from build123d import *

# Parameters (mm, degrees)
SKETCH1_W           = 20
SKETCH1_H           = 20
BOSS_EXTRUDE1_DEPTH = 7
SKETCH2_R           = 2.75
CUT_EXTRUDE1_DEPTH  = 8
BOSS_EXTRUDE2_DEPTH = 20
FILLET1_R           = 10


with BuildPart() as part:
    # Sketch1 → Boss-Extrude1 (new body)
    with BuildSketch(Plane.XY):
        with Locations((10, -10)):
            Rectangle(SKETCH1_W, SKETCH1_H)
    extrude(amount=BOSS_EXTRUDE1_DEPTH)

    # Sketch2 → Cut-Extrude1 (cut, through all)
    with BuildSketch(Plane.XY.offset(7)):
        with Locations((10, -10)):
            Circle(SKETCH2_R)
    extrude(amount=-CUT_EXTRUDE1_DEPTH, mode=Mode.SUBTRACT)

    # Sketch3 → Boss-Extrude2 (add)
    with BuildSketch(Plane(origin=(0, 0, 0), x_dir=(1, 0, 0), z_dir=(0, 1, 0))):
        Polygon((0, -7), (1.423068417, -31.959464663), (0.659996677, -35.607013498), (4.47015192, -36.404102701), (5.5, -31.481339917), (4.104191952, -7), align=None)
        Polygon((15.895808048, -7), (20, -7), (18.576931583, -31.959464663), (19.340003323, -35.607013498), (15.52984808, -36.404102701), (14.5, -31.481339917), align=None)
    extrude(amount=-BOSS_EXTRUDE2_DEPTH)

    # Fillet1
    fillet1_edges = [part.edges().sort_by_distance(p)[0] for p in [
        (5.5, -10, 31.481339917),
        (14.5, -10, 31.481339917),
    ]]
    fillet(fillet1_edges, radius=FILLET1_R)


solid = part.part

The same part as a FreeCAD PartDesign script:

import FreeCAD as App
import Part
import Sketcher
from FreeCAD import Vector


def edges_at(feature, points):
    """Names of the edges that pass closest to the given points."""
    edges = feature.Shape.Edges
    near = lambda p: min(range(len(edges)), key=lambda i: edges[i].distToShape(Part.Vertex(*p))[0])
    return sorted({f"Edge{near(p) + 1}" for p in points})


def add_polygon(sketch, points):
    """Adds a closed chain of lines whose ends are joined by coincident constraints."""
    first, n = sketch.GeometryCount, len(points)
    for a, b in zip(points, points[1:] + points[:1]):
        sketch.addGeometry(Part.LineSegment(App.Vector(*a, 0), App.Vector(*b, 0)), False)
    for i in range(n):
        sketch.addConstraint(Sketcher.Constraint("Coincident", first + i, 2, first + (i + 1) % n, 1))

doc = App.newDocument("Part")
params = doc.addObject("Spreadsheet::Sheet", "Params")
for row, (alias, value) in enumerate([
    ("sketch1_width", "20 mm"),
    ("pad1_length", "7 mm"),
    ("sketch2_diameter", "5.5 mm"),
    ("sketch3_length", "25 mm"),
    ("pad2_length", "20 mm"),
    ("fillet_radius", "10 mm"),
], start=1):
    params.set(f"A{row}", alias)
    params.set(f"B{row}", "=" + value)
    params.setAlias(f"B{row}", alias)

body = doc.addObject("PartDesign::Body", "Body")

# Sketch on XY plane
sketch1 = body.newObject("Sketcher::SketchObject", "Sketch")
sketch1.AttachmentSupport = (doc.getObject("XY_Plane"), [""])
sketch1.MapMode = "FlatFace"
add_polygon(sketch1, [(0, 0), (0, -20), (20, -20), (20, 0)])  # lines 0-3
sketch1.addConstraint([
    Sketcher.Constraint("Vertical", 0),
    Sketcher.Constraint("Horizontal", 1),
    Sketcher.Constraint("Vertical", 2),
    Sketcher.Constraint("Horizontal", 3),
    Sketcher.Constraint("Coincident", 3, 2, -1, 1),
    Sketcher.Constraint("Equal", 3, 0),
    Sketcher.Constraint("DistanceX", 1, 1, 1, 2, 20.0),
])
sketch1.setExpression("Constraints[10]", "Params.sketch1_width")
pad1 = body.newObject("PartDesign::Pad", "Pad")
pad1.Profile = sketch1
pad1.setExpression("Length", "Params.pad1_length")

# Sketch on XY plane
sketch2 = body.newObject("Sketcher::SketchObject", "Sketch001")
sketch2.AttachmentSupport = (doc.getObject("XY_Plane"), [""])
sketch2.MapMode = "FlatFace"
sketch2.AttachmentOffset = App.Placement(Vector(0, 0, 7), App.Rotation())
sketch2.addGeometry(Part.Circle(Vector(10, -10, 0), Vector(0, 0, 1), 2.8), False)
sketch2.addConstraint([
    Sketcher.Constraint("Diameter", 0, 5.5),
    Sketcher.Constraint("DistanceX", -1, 1, 0, 3, 10.0),
    Sketcher.Constraint("DistanceY", 0, 3, -1, 1, 10.0),
])
sketch2.setExpression("Constraints[0]", "Params.sketch2_diameter")
pocket1 = body.newObject("PartDesign::Pocket", "Pocket")
pocket1.Profile = sketch2
pocket1.Type = "ThroughAll"

# Sketch on XZ plane
sketch3 = body.newObject("Sketcher::SketchObject", "Sketch002")
sketch3.AttachmentSupport = (doc.getObject("XZ_Plane"), [""])
sketch3.MapMode = "FlatFace"
add_polygon(sketch3, [(0, 7), (1.4, 32), (0.7, 35.6), (4.5, 36.4), (5.5, 31.5), (4.1, 7)])  # lines 0-5
add_polygon(sketch3, [(20, 7), (15.9, 7), (14.5, 31.5), (15.5, 36.4), (19.3, 35.6), (18.6, 32)])  # lines 6-11
sketch3.addConstraint([
    Sketcher.Constraint("Horizontal", 5),
    Sketcher.Constraint("Horizontal", 6),
    Sketcher.Constraint("PointOnObject", 5, 2, -2),
    Sketcher.Constraint("Perpendicular", 1, 2),
    Sketcher.Constraint("Perpendicular", 2, 3),
    Sketcher.Constraint("Parallel", 0, 4),
    Sketcher.Constraint("Perpendicular", 8, 9),
    Sketcher.Constraint("Perpendicular", 9, 10),
    Sketcher.Constraint("Parallel", 7, 11),
    Sketcher.Constraint("Horizontal", 5, 2, 6, 2),
    Sketcher.Constraint("Horizontal", 3, 2, 7, 2),
    Sketcher.Constraint("Horizontal", 2, 2, 8, 2),
    Sketcher.Constraint("Horizontal", 1, 2, 9, 2),
    Sketcher.Constraint("Horizontal", 0, 2, 10, 2),
    Sketcher.Constraint("Equal", 5, 6),
    Sketcher.Constraint("Equal", 4, 7),
    Sketcher.Constraint("Distance", 0, 25.0),
    Sketcher.Constraint("DistanceY", -1, 1, 4, 2, 7.0),
    Sketcher.Constraint("DistanceX", -1, 1, 11, 2, 20.0),
    Sketcher.Constraint("DistanceX", 3, 2, 7, 2, 9.0),
    Sketcher.Constraint("Distance", 4, 24.521099),
    Sketcher.Constraint("DistanceX", 5, 2, 5, 1, 4.104192),
    Sketcher.Constraint("Distance", 1, 3.726512),
    Sketcher.Constraint("Distance", 2, 3.892638),
])
sketch3.setExpression("Constraints[28]", "Params.sketch3_length")
pad2 = body.newObject("PartDesign::Pad", "Pad001")
pad2.Profile = sketch3
pad2.setExpression("Length", "Params.pad2_length")
doc.recompute()

fillet = body.newObject("PartDesign::Fillet", "Fillet")
fillet.Base = (pad2, edges_at(pad2, [(5.5, -10, 31.481), (14.5, -10, 31.481)]))
fillet.setExpression("Radius", "Params.fillet_radius")

doc.recompute()
